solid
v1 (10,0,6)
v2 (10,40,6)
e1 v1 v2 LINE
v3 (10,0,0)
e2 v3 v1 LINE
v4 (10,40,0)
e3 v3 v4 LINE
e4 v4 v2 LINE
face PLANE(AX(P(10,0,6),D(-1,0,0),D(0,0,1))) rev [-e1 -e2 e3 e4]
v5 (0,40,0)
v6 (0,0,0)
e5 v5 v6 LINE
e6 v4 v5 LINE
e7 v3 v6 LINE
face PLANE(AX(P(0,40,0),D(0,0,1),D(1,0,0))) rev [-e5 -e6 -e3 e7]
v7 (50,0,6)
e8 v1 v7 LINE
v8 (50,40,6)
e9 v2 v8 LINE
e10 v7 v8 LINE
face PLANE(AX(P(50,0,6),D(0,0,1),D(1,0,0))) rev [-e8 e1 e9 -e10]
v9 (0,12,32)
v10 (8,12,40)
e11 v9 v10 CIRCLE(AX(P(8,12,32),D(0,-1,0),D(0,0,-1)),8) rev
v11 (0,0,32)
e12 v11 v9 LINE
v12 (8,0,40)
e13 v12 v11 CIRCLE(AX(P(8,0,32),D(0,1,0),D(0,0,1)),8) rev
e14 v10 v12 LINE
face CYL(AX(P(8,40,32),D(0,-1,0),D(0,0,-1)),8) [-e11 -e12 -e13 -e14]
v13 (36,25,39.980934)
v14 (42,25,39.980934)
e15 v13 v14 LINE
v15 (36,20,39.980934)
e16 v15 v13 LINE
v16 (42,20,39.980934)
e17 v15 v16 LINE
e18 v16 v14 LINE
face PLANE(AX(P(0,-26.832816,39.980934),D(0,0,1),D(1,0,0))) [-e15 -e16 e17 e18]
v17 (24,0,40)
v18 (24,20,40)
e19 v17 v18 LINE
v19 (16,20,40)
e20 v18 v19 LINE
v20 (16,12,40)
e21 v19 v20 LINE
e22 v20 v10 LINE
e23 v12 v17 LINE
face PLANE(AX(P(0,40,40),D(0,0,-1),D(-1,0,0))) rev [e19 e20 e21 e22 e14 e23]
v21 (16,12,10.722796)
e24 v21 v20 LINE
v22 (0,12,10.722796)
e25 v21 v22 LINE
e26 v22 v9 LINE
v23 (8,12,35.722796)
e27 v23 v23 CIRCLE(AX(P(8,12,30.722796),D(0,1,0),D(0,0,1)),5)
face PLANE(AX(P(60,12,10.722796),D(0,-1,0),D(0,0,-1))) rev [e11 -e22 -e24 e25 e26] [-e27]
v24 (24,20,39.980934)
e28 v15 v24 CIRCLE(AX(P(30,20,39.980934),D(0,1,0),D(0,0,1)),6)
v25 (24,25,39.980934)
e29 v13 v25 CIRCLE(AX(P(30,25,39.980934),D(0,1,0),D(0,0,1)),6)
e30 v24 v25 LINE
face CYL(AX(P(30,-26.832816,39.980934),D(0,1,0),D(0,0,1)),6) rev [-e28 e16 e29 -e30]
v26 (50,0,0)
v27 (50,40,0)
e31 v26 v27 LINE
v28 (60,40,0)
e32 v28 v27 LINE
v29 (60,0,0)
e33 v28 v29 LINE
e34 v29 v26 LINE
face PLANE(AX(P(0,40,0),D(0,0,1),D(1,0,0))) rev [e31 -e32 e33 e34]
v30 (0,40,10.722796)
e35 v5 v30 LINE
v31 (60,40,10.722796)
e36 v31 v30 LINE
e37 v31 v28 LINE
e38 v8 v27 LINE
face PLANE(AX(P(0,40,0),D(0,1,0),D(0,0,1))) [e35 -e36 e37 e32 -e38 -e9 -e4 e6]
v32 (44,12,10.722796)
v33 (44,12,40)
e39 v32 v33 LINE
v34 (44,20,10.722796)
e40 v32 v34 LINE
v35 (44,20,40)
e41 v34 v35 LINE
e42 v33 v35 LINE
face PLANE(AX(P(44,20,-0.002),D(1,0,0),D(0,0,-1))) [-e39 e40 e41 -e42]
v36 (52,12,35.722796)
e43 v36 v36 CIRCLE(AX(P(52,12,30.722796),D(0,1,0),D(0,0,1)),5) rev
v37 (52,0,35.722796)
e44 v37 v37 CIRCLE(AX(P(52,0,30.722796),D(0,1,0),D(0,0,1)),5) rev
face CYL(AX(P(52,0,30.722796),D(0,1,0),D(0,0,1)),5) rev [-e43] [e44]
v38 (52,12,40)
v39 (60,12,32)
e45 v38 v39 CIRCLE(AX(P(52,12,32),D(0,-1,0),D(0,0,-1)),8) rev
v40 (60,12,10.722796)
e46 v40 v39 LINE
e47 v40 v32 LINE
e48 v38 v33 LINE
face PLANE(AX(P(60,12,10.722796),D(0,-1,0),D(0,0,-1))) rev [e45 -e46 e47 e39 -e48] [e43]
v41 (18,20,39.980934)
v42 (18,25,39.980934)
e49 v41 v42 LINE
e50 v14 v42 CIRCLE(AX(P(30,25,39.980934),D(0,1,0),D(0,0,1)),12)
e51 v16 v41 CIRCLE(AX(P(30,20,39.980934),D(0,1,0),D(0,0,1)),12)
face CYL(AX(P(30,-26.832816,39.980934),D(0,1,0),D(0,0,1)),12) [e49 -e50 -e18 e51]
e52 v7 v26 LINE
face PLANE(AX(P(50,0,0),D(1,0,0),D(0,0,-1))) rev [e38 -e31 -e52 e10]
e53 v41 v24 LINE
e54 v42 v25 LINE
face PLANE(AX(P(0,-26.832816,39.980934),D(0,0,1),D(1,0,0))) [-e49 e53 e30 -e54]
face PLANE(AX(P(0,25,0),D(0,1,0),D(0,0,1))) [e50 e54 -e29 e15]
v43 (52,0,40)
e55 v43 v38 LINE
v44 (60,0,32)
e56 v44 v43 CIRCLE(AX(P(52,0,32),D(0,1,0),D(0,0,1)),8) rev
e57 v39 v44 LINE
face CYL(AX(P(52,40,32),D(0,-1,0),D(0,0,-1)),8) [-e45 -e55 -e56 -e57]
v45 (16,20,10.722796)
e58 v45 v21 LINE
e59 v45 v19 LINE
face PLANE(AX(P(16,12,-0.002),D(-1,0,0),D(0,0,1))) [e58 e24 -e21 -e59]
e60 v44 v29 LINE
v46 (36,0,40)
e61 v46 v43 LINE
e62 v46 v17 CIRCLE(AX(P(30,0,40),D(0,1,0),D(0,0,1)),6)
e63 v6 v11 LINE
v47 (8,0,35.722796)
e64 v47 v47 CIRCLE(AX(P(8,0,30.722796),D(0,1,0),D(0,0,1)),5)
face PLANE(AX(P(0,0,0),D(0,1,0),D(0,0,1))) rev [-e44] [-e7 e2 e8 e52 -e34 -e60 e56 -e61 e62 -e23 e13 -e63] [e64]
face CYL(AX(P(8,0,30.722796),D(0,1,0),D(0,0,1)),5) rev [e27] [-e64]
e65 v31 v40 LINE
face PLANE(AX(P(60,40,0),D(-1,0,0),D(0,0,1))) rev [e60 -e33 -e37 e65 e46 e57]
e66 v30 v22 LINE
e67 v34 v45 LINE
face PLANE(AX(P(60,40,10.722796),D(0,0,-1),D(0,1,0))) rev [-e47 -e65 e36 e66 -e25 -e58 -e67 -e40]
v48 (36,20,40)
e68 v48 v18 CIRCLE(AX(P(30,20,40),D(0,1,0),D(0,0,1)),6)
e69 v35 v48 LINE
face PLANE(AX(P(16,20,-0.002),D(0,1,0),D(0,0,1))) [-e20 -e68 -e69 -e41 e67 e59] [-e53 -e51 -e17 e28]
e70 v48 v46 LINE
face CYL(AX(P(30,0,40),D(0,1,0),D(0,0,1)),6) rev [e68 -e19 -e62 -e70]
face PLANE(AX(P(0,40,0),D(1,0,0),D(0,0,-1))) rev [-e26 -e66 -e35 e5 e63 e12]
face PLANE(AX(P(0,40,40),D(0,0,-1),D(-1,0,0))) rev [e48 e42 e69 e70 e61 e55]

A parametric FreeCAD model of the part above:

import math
import FreeCAD as App
import Part
import Sketcher


def edges_at(feature, points):
    """Names of the edges that pass closest to the given points."""
    edges = feature.Shape.Edges
    near = lambda p: min(range(len(edges)), key=lambda i: edges[i].distToShape(Part.Vertex(*p))[0])
    return sorted({f"Edge{near(p) + 1}" for p in points})

doc = App.newDocument("Part")
body = doc.addObject("PartDesign::Body", "Body")

# Sketch on XZ plane
sketch1 = body.newObject("Sketcher::SketchObject", "Sketch")
sketch1.AttachmentSupport = (doc.getObject("XZ_Plane"), [""])
sketch1.MapMode = "FlatFace"
sketch1.addGeometry(Part.LineSegment(App.Vector(0, 0, 0), App.Vector(0, 40, 0)), False)
sketch1.addGeometry(Part.LineSegment(App.Vector(0, 40, 0), App.Vector(60, 40, 0)), False)
sketch1.addGeometry(Part.LineSegment(App.Vector(60, 40, 0), App.Vector(60, 0, 0)), False)
sketch1.addGeometry(Part.LineSegment(App.Vector(60, 0, 0), App.Vector(0, 0, 0)), False)
sketch1.addConstraint(Sketcher.Constraint("Coincident", 0, 2, 1, 1))
sketch1.addConstraint(Sketcher.Constraint("Coincident", 1, 2, 2, 1))
sketch1.addConstraint(Sketcher.Constraint("Coincident", 2, 2, 3, 1))
sketch1.addConstraint(Sketcher.Constraint("Coincident", 3, 2, 0, 1))
sketch1.addConstraint(Sketcher.Constraint("Vertical", 0))
sketch1.addConstraint(Sketcher.Constraint("Horizontal", 1))
sketch1.addConstraint(Sketcher.Constraint("Vertical", 2))
sketch1.addConstraint(Sketcher.Constraint("Horizontal", 3))
sketch1.addConstraint(Sketcher.Constraint("Coincident", 3, 2, -1, 1))
sketch1.addConstraint(Sketcher.Constraint("DistanceX", 1, 1, 1, 2, 60.0))
sketch1.addConstraint(Sketcher.Constraint("DistanceY", 0, 1, 0, 2, 40.0))
pad1 = body.newObject("PartDesign::Pad", "Pad")
pad1.Profile = sketch1
pad1.Length = 40
pad1.Reversed = True

# Sketch on XZ plane
sketch2 = body.newObject("Sketcher::SketchObject", "Sketch001")
sketch2.AttachmentSupport = (doc.getObject("XZ_Plane"), [""])
sketch2.MapMode = "FlatFace"
sketch2.AttachmentOffset = App.Placement(App.Vector(0, 0, -40), App.Rotation())
sketch2.addGeometry(Part.LineSegment(App.Vector(10, 0, 0), App.Vector(10, 6, 0)), False)
sketch2.addGeometry(Part.LineSegment(App.Vector(10, 6, 0), App.Vector(50, 6, 0)), False)
sketch2.addGeometry(Part.LineSegment(App.Vector(50, 6, 0), App.Vector(50, 0, 0)), False)
sketch2.addGeometry(Part.LineSegment(App.Vector(50, 0, 0), App.Vector(10, 0, 0)), False)
sketch2.addConstraint(Sketcher.Constraint("Coincident", 0, 2, 1, 1))
sketch2.addConstraint(Sketcher.Constraint("Coincident", 1, 2, 2, 1))
sketch2.addConstraint(Sketcher.Constraint("Coincident", 2, 2, 3, 1))
sketch2.addConstraint(Sketcher.Constraint("Coincident", 3, 2, 0, 1))
sketch2.addConstraint(Sketcher.Constraint("Vertical", 0))
sketch2.addConstraint(Sketcher.Constraint("Horizontal", 1))
sketch2.addConstraint(Sketcher.Constraint("Vertical", 2))
sketch2.addConstraint(Sketcher.Constraint("Horizontal", 3))
sketch2.addConstraint(Sketcher.Constraint("PointOnObject", 2, 2, -1))
sketch2.addConstraint(Sketcher.Constraint("DistanceX", 1, 1, 1, 2, 40.0))
sketch2.addConstraint(Sketcher.Constraint("DistanceY", 0, 1, 0, 2, 6.0))
sketch2.addConstraint(Sketcher.Constraint("DistanceX", -1, 1, 0, 2, 10.0))
pocket1 = body.newObject("PartDesign::Pocket", "Pocket")
pocket1.Profile = sketch2
pocket1.Type = "ThroughAll"
pocket1.Reversed = True

# Sketch on YZ plane
sketch3 = body.newObject("Sketcher::SketchObject", "Sketch002")
sketch3.AttachmentSupport = (doc.getObject("YZ_Plane"), [""])
sketch3.MapMode = "FlatFace"
sketch3.AttachmentOffset = App.Placement(App.Vector(0, 0, 50), App.Rotation())
sketch3.addGeometry(Part.LineSegment(App.Vector(40, 11, 0), App.Vector(12, 11, 0)), False)
sketch3.addGeometry(Part.LineSegment(App.Vector(12, 11, 0), App.Vector(12, 40, 0)), False)
sketch3.addGeometry(Part.LineSegment(App.Vector(12, 40, 0), App.Vector(40, 40, 0)), False)
sketch3.addGeometry(Part.LineSegment(App.Vector(40, 40, 0), App.Vector(40, 11, 0)), False)
sketch3.addConstraint(Sketcher.Constraint("Coincident", 0, 2, 1, 1))
sketch3.addConstraint(Sketcher.Constraint("Coincident", 1, 2, 2, 1))
sketch3.addConstraint(Sketcher.Constraint("Coincident", 2, 2, 3, 1))
sketch3.addConstraint(Sketcher.Constraint("Coincident", 3, 2, 0, 1))
sketch3.addConstraint(Sketcher.Constraint("Horizontal", 0))
sketch3.addConstraint(Sketcher.Constraint("Vertical", 1))
sketch3.addConstraint(Sketcher.Constraint("Horizontal", 2))
sketch3.addConstraint(Sketcher.Constraint("Vertical", 3))
sketch3.addConstraint(Sketcher.Constraint("DistanceX", 0, 2, 0, 1, 28.0))
sketch3.addConstraint(Sketcher.Constraint("DistanceX", -1, 1, 0, 2, 12.0))
sketch3.addConstraint(Sketcher.Constraint("DistanceY", -1, 1, 1, 2, 40.0))
sketch3.addConstraint(Sketcher.Constraint("DistanceY", 1, 1, 1, 2, 29.277204))
pocket2 = body.newObject("PartDesign::Pocket", "Pocket001")
pocket2.Profile = sketch3
pocket2.Type = "ThroughAll"
pocket2.Midplane = True

# Sketch on XY plane
sketch4 = body.newObject("Sketcher::SketchObject", "Sketch003")
sketch4.AttachmentSupport = (doc.getObject("XY_Plane"), [""])
sketch4.MapMode = "FlatFace"
sketch4.AttachmentOffset = App.Placement(App.Vector(0, 0, 40), App.Rotation())
sketch4.addGeometry(Part.LineSegment(App.Vector(16, 20, 0), App.Vector(16, 12, 0)), False)
sketch4.addGeometry(Part.LineSegment(App.Vector(16, 12, 0), App.Vector(44, 12, 0)), False)
sketch4.addGeometry(Part.LineSegment(App.Vector(44, 12, 0), App.Vector(44, 20, 0)), False)
sketch4.addGeometry(Part.LineSegment(App.Vector(44, 20, 0), App.Vector(16, 20, 0)), False)
sketch4.addConstraint(Sketcher.Constraint("Coincident", 0, 2, 1, 1))
sketch4.addConstraint(Sketcher.Constraint("Coincident", 1, 2, 2, 1))
sketch4.addConstraint(Sketcher.Constraint("Coincident", 2, 2, 3, 1))
sketch4.addConstraint(Sketcher.Constraint("Coincident", 3, 2, 0, 1))
sketch4.addConstraint(Sketcher.Constraint("Vertical", 0))
sketch4.addConstraint(Sketcher.Constraint("Horizontal", 1))
sketch4.addConstraint(Sketcher.Constraint("Vertical", 2))
sketch4.addConstraint(Sketcher.Constraint("Horizontal", 3))
sketch4.addConstraint(Sketcher.Constraint("DistanceX", 1, 1, 1, 2, 28.0))
sketch4.addConstraint(Sketcher.Constraint("DistanceY", 0, 2, 0, 1, 8.0))
sketch4.addConstraint(Sketcher.Constraint("DistanceX", -1, 1, 0, 2, 16.0))
sketch4.addConstraint(Sketcher.Constraint("DistanceY", -1, 1, 0, 2, 12.0))
pad2 = body.newObject("PartDesign::Pad", "Pad001")
pad2.Profile = sketch4
pad2.Type = "UpToFirst"
pad2.Reversed = True

# Sketch on XZ plane
sketch5 = body.newObject("Sketcher::SketchObject", "Sketch004")
sketch5.AttachmentSupport = (doc.getObject("XZ_Plane"), [""])
sketch5.MapMode = "FlatFace"
sketch5.AttachmentOffset = App.Placement(App.Vector(0, 0, -20), App.Rotation())
sketch5.addGeometry(Part.ArcOfCircle(Part.Circle(App.Vector(30, 40, 0), App.Vector(0, 0, 1), 6), math.radians(180), math.radians(360)), False)
sketch5.addGeometry(Part.LineSegment(App.Vector(36, 40, 0), App.Vector(42, 40, 0)), False)
sketch5.addGeometry(Part.ArcOfCircle(Part.Circle(App.Vector(30, 40, 0), App.Vector(0, 0, 1), 12), math.radians(180), math.radians(360)), False)
sketch5.addGeometry(Part.LineSegment(App.Vector(18, 40, 0), App.Vector(24, 40, 0)), False)
sketch5.addConstraint(Sketcher.Constraint("Coincident", 0, 2, 1, 1))
sketch5.addConstraint(Sketcher.Constraint("Coincident", 1, 2, 2, 2))
sketch5.addConstraint(Sketcher.Constraint("Coincident", 2, 1, 3, 1))
sketch5.addConstraint(Sketcher.Constraint("Coincident", 3, 2, 0, 1))
sketch5.addConstraint(Sketcher.Constraint("Horizontal", 1))
sketch5.addConstraint(Sketcher.Constraint("Horizontal", 3))
sketch5.addConstraint(Sketcher.Constraint("Coincident", 2, 3, 0, 3))
sketch5.addConstraint(Sketcher.Constraint("Horizontal", 2, 3, 0, 2))
sketch5.addConstraint(Sketcher.Constraint("Horizontal", 1, 2, 2, 1))
sketch5.addConstraint(Sketcher.Constraint("Radius", 0, 6.0))
sketch5.addConstraint(Sketcher.Constraint("Radius", 2, 12.0))
sketch5.addConstraint(Sketcher.Constraint("DistanceX", -1, 1, 0, 3, 30.0))
sketch5.addConstraint(Sketcher.Constraint("DistanceY", -1, 1, 0, 3, 39.980934))
pad3 = body.newObject("PartDesign::Pad", "Pad002")
pad3.Profile = sketch5
pad3.Length = 5
pad3.Reversed = True

# Sketch on XZ plane
sketch6 = body.newObject("Sketcher::SketchObject", "Sketch005")
sketch6.AttachmentSupport = (doc.getObject("XZ_Plane"), [""])
sketch6.MapMode = "FlatFace"
sketch6.AttachmentOffset = App.Placement(App.Vector(0, 0, -12), App.Rotation())
sketch6.addGeometry(Part.Circle(App.Vector(8, 31, 0), App.Vector(0, 0, 1), 5), False)
sketch6.addGeometry(Part.Circle(App.Vector(52, 31, 0), App.Vector(0, 0, 1), 5), False)
sketch6.addConstraint(Sketcher.Constraint("Equal", 0, 1))
sketch6.addConstraint(Sketcher.Constraint("Horizontal", 0, 3, 1, 3))
sketch6.addConstraint(Sketcher.Constraint("Diameter", 0, 10.0))
sketch6.addConstraint(Sketcher.Constraint("DistanceX", -1, 1, 0, 3, 8.0))
sketch6.addConstraint(Sketcher.Constraint("DistanceX", -1, 1, 1, 3, 52.0))
sketch6.addConstraint(Sketcher.Constraint("DistanceY", -1, 1, 0, 3, 30.722796))
pocket3 = body.newObject("PartDesign::Pocket", "Pocket002")
pocket3.Profile = sketch6
pocket3.Type = "ThroughAll"
pocket3.Reversed = True
doc.recompute()

fillet = body.newObject("PartDesign::Fillet", "Fillet")
fillet.Base = (pocket3, edges_at(pocket3, [(60, 6, 40), (0, 6, 40)]))
fillet.Radius = 8

# Sketch on XZ plane
sketch7 = body.newObject("Sketcher::SketchObject", "Sketch006")
sketch7.AttachmentSupport = (doc.getObject("XZ_Plane"), [""])
sketch7.MapMode = "FlatFace"
sketch7.AttachmentOffset = App.Placement(App.Vector(0, 0, -20), App.Rotation())
sketch7.addGeometry(Part.Circle(App.Vector(30, 40, 0), App.Vector(0, 0, 1), 6), False)
sketch7.addConstraint(Sketcher.Constraint("Diameter", 0, 12.0))
sketch7.addConstraint(Sketcher.Constraint("DistanceX", -1, 1, 0, 3, 30.0))
sketch7.addConstraint(Sketcher.Constraint("DistanceY", -1, 1, 0, 3, 40.0))
pocket4 = body.newObject("PartDesign::Pocket", "Pocket003")
pocket4.Profile = sketch7
pocket4.Type = "ThroughAll"
pocket4.Reversed = True

doc.recompute()
